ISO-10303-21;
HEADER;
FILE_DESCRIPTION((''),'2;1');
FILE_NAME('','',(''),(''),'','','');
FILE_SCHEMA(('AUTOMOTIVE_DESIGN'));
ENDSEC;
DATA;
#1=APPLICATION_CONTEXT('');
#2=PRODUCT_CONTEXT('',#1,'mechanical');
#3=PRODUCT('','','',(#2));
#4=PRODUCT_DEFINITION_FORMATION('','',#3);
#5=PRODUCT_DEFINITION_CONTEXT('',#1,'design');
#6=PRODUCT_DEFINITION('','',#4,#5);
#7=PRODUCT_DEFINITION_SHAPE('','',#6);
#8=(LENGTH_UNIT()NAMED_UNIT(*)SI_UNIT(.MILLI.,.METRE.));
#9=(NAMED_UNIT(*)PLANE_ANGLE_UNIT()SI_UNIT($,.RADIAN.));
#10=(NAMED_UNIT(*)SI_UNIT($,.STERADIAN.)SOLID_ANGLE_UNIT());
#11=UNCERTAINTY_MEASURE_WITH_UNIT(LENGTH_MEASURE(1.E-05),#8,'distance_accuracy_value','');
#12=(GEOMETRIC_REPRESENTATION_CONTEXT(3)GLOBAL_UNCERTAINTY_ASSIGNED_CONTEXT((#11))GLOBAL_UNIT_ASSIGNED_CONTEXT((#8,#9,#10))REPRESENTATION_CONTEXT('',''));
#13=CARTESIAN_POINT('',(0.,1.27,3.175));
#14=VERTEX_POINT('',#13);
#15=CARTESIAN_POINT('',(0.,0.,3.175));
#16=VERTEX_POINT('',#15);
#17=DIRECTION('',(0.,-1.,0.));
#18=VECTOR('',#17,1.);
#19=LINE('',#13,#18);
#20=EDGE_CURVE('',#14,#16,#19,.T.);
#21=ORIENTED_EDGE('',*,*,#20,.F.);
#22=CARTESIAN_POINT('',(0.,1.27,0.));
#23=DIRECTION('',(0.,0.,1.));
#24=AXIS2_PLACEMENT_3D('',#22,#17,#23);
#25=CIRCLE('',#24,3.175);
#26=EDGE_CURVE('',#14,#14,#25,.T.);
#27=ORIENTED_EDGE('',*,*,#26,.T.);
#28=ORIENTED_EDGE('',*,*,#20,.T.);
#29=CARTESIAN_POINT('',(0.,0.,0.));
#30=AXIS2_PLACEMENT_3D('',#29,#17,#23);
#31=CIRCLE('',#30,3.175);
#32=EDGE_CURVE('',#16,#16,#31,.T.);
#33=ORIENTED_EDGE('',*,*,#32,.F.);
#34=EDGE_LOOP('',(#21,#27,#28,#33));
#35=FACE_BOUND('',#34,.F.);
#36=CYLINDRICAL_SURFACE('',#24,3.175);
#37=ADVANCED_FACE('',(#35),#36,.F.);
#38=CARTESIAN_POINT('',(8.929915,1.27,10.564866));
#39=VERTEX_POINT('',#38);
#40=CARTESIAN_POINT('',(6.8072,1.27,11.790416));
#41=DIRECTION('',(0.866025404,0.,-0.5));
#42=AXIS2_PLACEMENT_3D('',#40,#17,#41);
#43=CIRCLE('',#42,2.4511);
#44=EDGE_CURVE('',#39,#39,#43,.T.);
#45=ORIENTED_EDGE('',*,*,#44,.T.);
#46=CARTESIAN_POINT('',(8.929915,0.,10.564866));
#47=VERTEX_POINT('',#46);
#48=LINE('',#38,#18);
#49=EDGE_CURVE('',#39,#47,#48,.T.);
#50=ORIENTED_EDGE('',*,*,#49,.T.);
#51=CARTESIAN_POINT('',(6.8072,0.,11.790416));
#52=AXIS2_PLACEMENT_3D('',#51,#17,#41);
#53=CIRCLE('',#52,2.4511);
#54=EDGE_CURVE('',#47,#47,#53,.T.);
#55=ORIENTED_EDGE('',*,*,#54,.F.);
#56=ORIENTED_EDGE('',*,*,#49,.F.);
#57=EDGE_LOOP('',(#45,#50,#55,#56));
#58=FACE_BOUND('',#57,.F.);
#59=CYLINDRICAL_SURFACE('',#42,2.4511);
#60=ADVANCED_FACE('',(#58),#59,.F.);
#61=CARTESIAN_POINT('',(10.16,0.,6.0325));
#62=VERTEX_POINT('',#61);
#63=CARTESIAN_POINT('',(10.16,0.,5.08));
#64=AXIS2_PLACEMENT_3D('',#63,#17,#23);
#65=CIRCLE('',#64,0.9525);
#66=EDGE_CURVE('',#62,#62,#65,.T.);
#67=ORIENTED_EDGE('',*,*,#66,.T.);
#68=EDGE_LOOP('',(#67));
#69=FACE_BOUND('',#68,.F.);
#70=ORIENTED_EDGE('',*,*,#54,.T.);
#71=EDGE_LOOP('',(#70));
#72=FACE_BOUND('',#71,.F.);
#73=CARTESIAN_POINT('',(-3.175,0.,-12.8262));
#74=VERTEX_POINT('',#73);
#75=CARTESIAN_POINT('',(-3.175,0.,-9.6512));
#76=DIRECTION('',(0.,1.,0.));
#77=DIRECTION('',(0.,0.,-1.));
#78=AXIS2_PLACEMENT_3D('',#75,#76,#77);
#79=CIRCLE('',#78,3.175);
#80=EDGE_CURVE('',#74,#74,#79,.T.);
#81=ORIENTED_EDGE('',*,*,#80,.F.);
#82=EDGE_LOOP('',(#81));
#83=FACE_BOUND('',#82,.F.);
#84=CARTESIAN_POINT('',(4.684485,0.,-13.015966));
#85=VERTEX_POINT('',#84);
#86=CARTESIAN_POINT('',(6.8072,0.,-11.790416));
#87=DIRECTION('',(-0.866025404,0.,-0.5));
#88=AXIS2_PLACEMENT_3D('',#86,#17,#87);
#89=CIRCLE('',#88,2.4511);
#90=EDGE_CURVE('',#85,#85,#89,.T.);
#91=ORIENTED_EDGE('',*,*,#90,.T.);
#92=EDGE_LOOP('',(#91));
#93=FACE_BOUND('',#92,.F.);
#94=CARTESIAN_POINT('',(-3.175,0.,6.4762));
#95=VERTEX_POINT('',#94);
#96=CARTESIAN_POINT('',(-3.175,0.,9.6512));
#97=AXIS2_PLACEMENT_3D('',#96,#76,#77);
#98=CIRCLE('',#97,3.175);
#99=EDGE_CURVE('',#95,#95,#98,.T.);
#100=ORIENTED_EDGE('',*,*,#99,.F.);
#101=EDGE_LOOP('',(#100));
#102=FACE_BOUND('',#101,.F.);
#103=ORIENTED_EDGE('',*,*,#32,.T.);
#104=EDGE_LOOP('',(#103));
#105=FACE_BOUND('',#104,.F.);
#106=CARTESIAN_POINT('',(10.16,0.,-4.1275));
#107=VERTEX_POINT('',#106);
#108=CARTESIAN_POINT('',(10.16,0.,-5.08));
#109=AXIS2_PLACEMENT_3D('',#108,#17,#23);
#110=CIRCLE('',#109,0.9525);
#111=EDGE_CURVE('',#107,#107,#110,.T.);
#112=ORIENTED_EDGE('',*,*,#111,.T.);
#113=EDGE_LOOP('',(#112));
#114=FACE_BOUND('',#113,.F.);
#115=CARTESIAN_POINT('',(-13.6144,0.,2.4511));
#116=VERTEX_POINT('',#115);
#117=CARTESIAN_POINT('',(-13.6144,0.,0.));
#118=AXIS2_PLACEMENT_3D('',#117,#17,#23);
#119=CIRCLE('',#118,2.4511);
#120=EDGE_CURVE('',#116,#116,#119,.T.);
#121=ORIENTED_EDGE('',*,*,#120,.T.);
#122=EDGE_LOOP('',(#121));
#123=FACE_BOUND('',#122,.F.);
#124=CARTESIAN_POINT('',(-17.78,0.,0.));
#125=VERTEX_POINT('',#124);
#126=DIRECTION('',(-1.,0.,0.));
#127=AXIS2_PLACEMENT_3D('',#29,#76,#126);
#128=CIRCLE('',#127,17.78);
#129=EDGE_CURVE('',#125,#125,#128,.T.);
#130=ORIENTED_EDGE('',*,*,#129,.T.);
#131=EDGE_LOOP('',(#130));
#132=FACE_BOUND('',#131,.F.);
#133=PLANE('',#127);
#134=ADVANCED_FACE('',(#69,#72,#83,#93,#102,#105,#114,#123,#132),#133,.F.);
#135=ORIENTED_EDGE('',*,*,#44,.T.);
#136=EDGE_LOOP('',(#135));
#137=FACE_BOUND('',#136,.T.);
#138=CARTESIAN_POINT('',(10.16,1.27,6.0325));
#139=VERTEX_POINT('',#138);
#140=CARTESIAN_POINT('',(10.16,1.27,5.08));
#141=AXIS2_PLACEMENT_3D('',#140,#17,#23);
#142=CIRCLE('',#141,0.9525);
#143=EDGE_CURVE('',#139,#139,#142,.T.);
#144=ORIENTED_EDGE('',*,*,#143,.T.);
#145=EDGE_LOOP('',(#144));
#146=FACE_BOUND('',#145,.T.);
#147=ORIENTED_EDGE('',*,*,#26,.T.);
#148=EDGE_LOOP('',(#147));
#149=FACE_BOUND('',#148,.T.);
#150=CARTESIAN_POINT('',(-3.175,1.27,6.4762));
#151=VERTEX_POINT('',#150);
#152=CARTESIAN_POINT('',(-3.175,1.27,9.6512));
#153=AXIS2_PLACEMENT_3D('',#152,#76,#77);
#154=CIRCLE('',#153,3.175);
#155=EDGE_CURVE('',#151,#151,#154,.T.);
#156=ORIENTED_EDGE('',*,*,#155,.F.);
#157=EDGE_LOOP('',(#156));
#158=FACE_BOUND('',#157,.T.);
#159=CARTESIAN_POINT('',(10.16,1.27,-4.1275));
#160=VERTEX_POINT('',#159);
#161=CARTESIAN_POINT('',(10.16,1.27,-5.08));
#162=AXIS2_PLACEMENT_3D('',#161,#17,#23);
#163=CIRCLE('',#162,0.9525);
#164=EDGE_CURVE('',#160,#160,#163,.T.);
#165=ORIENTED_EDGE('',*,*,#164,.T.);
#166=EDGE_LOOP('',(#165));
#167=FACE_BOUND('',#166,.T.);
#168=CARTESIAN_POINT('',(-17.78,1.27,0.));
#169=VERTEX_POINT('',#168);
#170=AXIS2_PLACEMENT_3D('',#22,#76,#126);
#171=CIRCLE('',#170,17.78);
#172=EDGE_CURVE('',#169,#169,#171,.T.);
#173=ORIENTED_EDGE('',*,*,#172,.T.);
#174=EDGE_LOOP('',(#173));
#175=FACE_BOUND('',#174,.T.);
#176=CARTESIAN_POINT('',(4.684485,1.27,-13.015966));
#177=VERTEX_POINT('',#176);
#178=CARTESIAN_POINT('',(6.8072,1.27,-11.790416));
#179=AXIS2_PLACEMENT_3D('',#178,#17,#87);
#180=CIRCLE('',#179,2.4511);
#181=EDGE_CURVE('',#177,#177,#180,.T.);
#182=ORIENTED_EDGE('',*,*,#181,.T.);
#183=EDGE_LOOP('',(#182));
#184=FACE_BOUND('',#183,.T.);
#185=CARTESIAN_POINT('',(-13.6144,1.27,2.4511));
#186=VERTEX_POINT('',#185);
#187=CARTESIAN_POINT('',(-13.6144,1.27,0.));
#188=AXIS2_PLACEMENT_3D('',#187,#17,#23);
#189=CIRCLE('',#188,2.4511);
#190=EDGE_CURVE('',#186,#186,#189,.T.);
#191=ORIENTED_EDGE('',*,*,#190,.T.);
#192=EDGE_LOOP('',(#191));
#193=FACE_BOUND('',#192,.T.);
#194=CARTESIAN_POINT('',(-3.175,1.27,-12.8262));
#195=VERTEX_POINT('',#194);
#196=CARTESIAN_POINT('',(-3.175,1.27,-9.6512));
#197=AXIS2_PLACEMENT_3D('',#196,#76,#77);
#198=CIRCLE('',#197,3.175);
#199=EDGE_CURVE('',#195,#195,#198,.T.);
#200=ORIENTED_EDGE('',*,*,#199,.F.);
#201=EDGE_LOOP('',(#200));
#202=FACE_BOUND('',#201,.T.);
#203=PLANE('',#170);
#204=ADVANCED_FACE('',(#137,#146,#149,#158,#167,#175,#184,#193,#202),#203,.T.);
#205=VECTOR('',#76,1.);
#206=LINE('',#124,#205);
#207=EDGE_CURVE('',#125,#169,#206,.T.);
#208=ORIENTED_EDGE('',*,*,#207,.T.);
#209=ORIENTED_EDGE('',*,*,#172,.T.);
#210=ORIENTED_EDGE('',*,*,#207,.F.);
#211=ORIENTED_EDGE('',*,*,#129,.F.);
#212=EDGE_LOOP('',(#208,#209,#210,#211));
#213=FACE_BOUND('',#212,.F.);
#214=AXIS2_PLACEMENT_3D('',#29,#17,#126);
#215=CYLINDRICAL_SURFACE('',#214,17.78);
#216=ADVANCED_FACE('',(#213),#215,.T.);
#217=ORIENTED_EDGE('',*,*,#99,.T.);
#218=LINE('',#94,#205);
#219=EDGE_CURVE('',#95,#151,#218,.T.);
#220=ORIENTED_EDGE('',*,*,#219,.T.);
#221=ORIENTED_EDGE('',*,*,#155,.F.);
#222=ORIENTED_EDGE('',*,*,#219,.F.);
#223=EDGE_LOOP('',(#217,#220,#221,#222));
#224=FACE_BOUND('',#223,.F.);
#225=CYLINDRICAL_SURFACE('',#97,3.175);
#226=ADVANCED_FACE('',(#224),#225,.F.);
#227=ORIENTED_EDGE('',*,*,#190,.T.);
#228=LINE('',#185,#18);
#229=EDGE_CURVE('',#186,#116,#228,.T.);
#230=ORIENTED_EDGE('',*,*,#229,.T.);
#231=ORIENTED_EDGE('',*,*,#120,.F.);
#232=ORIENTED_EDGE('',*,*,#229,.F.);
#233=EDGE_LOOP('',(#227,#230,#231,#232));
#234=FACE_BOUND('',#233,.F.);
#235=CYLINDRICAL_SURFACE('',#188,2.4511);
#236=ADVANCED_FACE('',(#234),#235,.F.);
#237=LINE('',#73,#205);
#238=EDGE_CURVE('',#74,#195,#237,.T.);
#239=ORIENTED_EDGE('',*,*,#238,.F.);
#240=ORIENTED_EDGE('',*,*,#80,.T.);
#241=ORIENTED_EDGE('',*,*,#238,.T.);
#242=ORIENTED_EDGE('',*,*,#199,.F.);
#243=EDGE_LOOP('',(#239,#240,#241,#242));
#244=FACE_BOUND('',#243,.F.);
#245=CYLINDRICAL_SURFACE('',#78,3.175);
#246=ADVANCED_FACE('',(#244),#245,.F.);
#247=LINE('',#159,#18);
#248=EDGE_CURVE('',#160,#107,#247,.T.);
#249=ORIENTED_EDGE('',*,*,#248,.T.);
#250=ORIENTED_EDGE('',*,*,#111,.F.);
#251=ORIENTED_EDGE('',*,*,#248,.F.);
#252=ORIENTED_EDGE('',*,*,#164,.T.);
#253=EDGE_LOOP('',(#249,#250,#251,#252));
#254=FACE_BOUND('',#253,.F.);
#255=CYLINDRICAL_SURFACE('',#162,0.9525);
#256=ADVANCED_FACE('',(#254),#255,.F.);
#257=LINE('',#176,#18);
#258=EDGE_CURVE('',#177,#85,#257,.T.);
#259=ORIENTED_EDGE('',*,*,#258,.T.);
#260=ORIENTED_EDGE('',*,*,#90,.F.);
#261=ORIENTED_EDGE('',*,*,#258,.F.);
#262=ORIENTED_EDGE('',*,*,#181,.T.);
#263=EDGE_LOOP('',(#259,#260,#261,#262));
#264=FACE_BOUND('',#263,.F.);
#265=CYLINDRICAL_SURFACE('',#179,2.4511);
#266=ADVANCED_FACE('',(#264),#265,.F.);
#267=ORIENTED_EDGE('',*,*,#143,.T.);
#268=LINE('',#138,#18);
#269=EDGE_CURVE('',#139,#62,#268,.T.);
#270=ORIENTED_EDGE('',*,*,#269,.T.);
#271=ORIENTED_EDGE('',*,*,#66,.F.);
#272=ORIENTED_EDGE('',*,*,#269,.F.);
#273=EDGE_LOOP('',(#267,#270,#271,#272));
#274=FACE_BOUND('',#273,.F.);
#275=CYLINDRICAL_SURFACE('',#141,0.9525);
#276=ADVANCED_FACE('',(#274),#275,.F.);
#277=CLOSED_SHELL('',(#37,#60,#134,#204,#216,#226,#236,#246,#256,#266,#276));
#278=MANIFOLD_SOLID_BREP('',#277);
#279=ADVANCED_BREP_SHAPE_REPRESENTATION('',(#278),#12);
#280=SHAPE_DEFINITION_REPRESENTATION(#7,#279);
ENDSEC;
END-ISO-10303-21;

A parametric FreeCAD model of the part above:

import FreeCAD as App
import Part
import Sketcher
from FreeCAD import Vector
Q = App.Units.Quantity

doc = App.newDocument("Part")
body = doc.addObject("PartDesign::Body", "Body")

# Sketch on XZ plane
sketch1 = body.newObject("Sketcher::SketchObject", "Sketch")
sketch1.AttachmentSupport = (doc.getObject("XZ_Plane"), [""])
sketch1.MapMode = "FlatFace"
sketch1.addGeometry(Part.Circle(Vector(0, 0, 0), Vector(0, 0, 1), 17.78), False)
sketch1.addConstraint(Sketcher.Constraint("Coincident", 0, 3, -1, 1))
sketch1.addConstraint(Sketcher.Constraint("Diameter", 0, Q("1.4 in")))
pad1 = body.newObject("PartDesign::Pad", "Pad")
pad1.Profile = sketch1
pad1.Length = Q("0.05 in")
pad1.Reversed = True

# Sketch on XZ plane
sketch2 = body.newObject("Sketcher::SketchObject", "Sketch001")
sketch2.AttachmentSupport = (doc.getObject("XZ_Plane"), [""])
sketch2.MapMode = "FlatFace"
sketch2.AttachmentOffset = App.Placement(Vector(0, 0, -0.05 * 25.4), App.Rotation())
sketch2.addGeometry(Part.Circle(Vector(0, 0, 0), Vector(0, 0, 1), 3.175), False)
sketch2.addConstraint(Sketcher.Constraint("Coincident", 0, 3, -1, 1))
sketch2.addConstraint(Sketcher.Constraint("Diameter", 0, Q("0.25 in")))
doc.recompute()
hole = body.newObject("PartDesign::Hole", "Hole")
hole.Profile = sketch2
hole.ThreadType = "None"
hole.Diameter = Q("0.25 in")
hole.DepthType = "ThroughAll"
hole.Reversed = True

# Sketch on XZ plane
sketch3 = body.newObject("Sketcher::SketchObject", "Sketch002")
sketch3.AttachmentSupport = (doc.getObject("XZ_Plane"), [""])
sketch3.MapMode = "FlatFace"
sketch3.AttachmentOffset = App.Placement(Vector(0, 0, -0.05 * 25.4), App.Rotation())
sketch3.addGeometry(Part.Circle(Vector(-13.6144, 0, 0), Vector(0, 0, 1), 2.4511), False)
sketch3.addConstraint(Sketcher.Constraint("PointOnObject", 0, 3, -1))
sketch3.addConstraint(Sketcher.Constraint("Diameter", 0, Q("0.193 in")))
sketch3.addConstraint(Sketcher.Constraint("DistanceX", 0, 3, -1, 1, Q("0.536 in")))
doc.recompute()
hole2 = body.newObject("PartDesign::Hole", "Hole001")
hole2.Profile = sketch3
hole2.ThreadType = "None"
hole2.Diameter = Q("0.193 in")
hole2.DepthType = "ThroughAll"
hole2.Reversed = True
doc.recompute()

polarpattern = body.newObject("PartDesign::PolarPattern", "PolarPattern")
polarpattern.Originals = [hole2]
polarpattern.Axis = (doc.getObject("Y_Axis"), [""])
polarpattern.Angle = 360
polarpattern.Occurrences = 3
body.Tip = polarpattern

# Sketch on XZ plane
sketch4 = body.newObject("Sketcher::SketchObject", "Sketch003")
sketch4.AttachmentSupport = (doc.getObject("XZ_Plane"), [""])
sketch4.MapMode = "FlatFace"
sketch4.AttachmentOffset = App.Placement(Vector(0, 0, -0.05 * 25.4), App.Rotation())
sketch4.addGeometry(Part.Circle(Vector(10.16, -5.08, 0), Vector(0, 0, 1), 0.9525), False)
sketch4.addGeometry(Part.Circle(Vector(10.16, 5.08, 0), Vector(0, 0, 1), 0.9525), False)
sketch4.addConstraint(Sketcher.Constraint("Equal", 0, 1))
sketch4.addConstraint(Sketcher.Constraint("Symmetric", 0, 3, 1, 3, -1))
sketch4.addConstraint(Sketcher.Constraint("Diameter", 0, Q("0.075 in")))
sketch4.addConstraint(Sketcher.Constraint("DistanceX", -1, 1, 0, 3, Q("0.4 in")))
sketch4.addConstraint(Sketcher.Constraint("DistanceY", 0, 3, -1, 1, Q("0.2 in")))
doc.recompute()
hole3 = body.newObject("PartDesign::Hole", "Hole002")
hole3.Profile = sketch4
hole3.ThreadType = "None"
hole3.Diameter = Q("0.075 in")
hole3.DepthType = "ThroughAll"
hole3.Reversed = True

# Sketch on XZ plane
sketch5 = body.newObject("Sketcher::SketchObject", "Sketch004")
sketch5.AttachmentSupport = (doc.getObject("XZ_Plane"), [""])
sketch5.MapMode = "FlatFace"
sketch5.addGeometry(Part.Circle(Vector(-3.175, 9.6512, 0), Vector(0, 0, 1), 3.175), False)
sketch5.addGeometry(Part.Circle(Vector(-3.175, -9.6512, 0), Vector(0, 0, 1), 3.175), False)
sketch5.addConstraint(Sketcher.Constraint("Equal", 0, 1))
sketch5.addConstraint(Sketcher.Constraint("Symmetric", 0, 3, 1, 3, -1))
sketch5.addConstraint(Sketcher.Constraint("Diameter", 0, Q("0.25 in")))
sketch5.addConstraint(Sketcher.Constraint("DistanceX", 0, 3, -1, 1, Q("0.125 in")))
sketch5.addConstraint(Sketcher.Constraint("DistanceY", -1, 1, 0, 3, 9.6512))
doc.recompute()
hole4 = body.newObject("PartDesign::Hole", "Hole003")
hole4.Profile = sketch5
hole4.ThreadType = "None"
hole4.Diameter = Q("0.25 in")
hole4.DepthType = "Dimension"
hole4.Depth = Q("0.1 in")
hole4.DrillPoint = "Flat"

doc.recompute()
